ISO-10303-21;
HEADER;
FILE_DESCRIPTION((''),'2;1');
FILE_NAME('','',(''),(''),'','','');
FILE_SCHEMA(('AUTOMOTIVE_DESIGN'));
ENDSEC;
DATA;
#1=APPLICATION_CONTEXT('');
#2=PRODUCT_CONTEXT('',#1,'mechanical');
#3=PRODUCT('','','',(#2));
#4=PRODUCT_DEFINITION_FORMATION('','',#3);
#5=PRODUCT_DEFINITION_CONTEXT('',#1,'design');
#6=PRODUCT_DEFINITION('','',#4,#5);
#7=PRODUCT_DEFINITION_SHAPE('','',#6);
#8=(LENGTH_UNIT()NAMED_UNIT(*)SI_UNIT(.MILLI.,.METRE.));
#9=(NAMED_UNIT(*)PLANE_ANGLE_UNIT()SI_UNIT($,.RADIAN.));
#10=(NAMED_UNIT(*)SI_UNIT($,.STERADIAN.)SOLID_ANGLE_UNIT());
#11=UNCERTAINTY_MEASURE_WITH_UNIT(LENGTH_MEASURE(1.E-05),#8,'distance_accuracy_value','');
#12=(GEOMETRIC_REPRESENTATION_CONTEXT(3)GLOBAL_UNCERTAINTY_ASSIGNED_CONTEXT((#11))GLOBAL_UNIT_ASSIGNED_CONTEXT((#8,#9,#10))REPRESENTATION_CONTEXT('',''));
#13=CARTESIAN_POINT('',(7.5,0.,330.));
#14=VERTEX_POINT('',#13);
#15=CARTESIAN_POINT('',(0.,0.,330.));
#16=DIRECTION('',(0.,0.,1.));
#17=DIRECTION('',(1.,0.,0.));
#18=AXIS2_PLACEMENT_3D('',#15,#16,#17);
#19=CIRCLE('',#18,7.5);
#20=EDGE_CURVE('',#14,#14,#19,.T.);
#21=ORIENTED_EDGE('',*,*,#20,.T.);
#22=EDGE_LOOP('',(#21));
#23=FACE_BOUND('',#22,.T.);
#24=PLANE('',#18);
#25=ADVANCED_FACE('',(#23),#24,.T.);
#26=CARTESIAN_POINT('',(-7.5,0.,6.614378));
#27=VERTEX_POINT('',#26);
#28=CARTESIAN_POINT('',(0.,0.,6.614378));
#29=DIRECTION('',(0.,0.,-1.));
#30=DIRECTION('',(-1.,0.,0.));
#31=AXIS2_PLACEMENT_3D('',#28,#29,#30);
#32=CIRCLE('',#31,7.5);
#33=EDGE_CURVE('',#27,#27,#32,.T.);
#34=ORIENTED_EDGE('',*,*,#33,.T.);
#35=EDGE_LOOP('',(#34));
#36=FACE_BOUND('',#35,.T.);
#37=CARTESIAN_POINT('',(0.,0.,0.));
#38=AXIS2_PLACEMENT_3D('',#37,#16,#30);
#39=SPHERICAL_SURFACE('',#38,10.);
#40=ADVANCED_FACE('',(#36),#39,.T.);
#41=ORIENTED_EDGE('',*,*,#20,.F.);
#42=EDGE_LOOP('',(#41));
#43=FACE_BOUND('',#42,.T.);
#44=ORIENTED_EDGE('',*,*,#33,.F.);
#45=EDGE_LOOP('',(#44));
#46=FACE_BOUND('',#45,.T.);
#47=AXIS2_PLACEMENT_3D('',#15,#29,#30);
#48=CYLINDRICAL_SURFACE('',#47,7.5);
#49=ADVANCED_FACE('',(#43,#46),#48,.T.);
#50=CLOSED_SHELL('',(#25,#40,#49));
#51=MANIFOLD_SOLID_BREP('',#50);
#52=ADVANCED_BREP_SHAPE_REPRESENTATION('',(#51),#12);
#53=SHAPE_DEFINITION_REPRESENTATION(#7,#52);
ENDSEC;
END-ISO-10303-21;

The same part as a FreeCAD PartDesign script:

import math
import FreeCAD as App
import Part
import Sketcher

V = App.Vector

doc = App.newDocument("Part")
params = doc.addObject("Spreadsheet::Sheet", "Params")
for row, (alias, value) in enumerate([
    ("sketch1_diameter", "15 mm"),
    ("pad1_length", "330 mm"),
    ("sketch2_radius", "10 mm"),
    ("sketch2_width", "7.5 mm"),
    ("revolution_angle", "360 deg"),
], start=1):
    params.set(f"A{row}", alias)
    params.set(f"B{row}", "=" + value)
    params.setAlias(f"B{row}", alias)

body = doc.addObject("PartDesign::Body", "Body")

sketch1 = body.newObject("Sketcher::SketchObject", "Sketch")
sketch1.AttachmentSupport = (doc.getObject("XY_Plane"), [""])
sketch1.MapMode = "FlatFace"
sketch1.addGeometry(Part.Circle(V(0, 0, 0), V(0, 0, 1), 8), False)
sketch1.addConstraint([
    Sketcher.Constraint("Coincident", 0, 3, -1, 1),
    Sketcher.Constraint("Diameter", 0, 15.0),
])
sketch1.setExpression("Constraints[1]", "Params.sketch1_diameter")
pad1 = body.newObject("PartDesign::Pad", "Pad")
pad1.Profile = sketch1
pad1.setExpression("Length", "Params.pad1_length")

sketch2 = body.newObject("Sketcher::SketchObject", "Sketch001")
sketch2.AttachmentSupport = (doc.getObject("XZ_Plane"), [""])
sketch2.MapMode = "FlatFace"
sketch2.addGeometry([
    Part.LineSegment(V(-8, 7, 0), V(0, 7, 0)),
    Part.LineSegment(V(0, 7, 0), V(0, -10, 0)),
    Part.ArcOfCircle(Part.Circle(V(0, 0, 0), V(0, 0, 1), 10), math.radians(139), math.radians(270)),
], False)
sketch2.addConstraint([
    Sketcher.Constraint("Coincident", 0, 2, 1, 1),
    Sketcher.Constraint("Coincident", 1, 2, 2, 2),
    Sketcher.Constraint("Coincident", 2, 1, 0, 1),
    Sketcher.Constraint("Horizontal", 0),
    Sketcher.Constraint("Vertical", 1),
    Sketcher.Constraint("Coincident", 2, 3, -1, 1),
    Sketcher.Constraint("PointOnObject", 0, 2, -2),
    Sketcher.Constraint("Radius", 2, 10.0),
    Sketcher.Constraint("DistanceX", 0, 1, 0, 2, 7.5),
])
sketch2.setExpression("Constraints[7]", "Params.sketch2_radius")
sketch2.setExpression("Constraints[8]", "Params.sketch2_width")
revolution = body.newObject("PartDesign::Revolution", "Revolution")
revolution.Profile = sketch2
revolution.ReferenceAxis = (sketch2, ["V_Axis"])
revolution.setExpression("Angle", "Params.revolution_angle")

doc.recompute()
